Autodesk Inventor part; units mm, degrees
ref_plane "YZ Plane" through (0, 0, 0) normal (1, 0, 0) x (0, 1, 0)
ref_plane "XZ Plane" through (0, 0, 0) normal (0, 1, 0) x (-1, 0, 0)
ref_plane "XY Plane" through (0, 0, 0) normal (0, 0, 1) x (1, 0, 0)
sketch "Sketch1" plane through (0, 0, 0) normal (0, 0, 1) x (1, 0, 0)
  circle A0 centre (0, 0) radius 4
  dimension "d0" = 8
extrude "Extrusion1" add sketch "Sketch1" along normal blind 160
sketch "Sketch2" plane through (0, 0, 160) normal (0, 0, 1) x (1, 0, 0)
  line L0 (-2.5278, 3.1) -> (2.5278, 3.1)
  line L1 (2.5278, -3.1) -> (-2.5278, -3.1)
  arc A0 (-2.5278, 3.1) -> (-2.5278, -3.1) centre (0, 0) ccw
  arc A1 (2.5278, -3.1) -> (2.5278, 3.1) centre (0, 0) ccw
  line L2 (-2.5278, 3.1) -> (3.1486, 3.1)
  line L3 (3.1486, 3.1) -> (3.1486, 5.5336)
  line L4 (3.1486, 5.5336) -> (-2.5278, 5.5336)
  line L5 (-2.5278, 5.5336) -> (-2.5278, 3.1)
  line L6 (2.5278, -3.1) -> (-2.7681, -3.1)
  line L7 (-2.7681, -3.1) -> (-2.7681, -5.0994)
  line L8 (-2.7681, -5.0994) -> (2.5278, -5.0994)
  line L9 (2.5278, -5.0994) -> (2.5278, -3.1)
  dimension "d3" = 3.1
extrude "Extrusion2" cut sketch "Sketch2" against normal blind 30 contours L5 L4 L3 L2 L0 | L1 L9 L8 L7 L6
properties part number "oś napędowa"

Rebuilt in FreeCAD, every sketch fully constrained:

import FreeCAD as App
import Part
import Sketcher

V = App.Vector
Q = App.Units.Quantity


def add_polygon(sketch, points):
    """Adds a closed chain of lines whose ends are joined by coincident constraints."""
    first, n = sketch.GeometryCount, len(points)
    for a, b in zip(points, points[1:] + points[:1]):
        sketch.addGeometry(Part.LineSegment(App.Vector(*a, 0), App.Vector(*b, 0)), False)
    for i in range(n):
        sketch.addConstraint(Sketcher.Constraint("Coincident", first + i, 2, first + (i + 1) % n, 1))

doc = App.newDocument("Part")
body = doc.addObject("PartDesign::Body", "Body")

sketch1 = body.newObject("Sketcher::SketchObject", "Sketch")
sketch1.AttachmentSupport = (doc.getObject("XY_Plane"), [""])
sketch1.MapMode = "FlatFace"
sketch1.addGeometry(Part.Circle(V(0, 0, 0), V(0, 0, 1), 4), False)
sketch1.addConstraint(Sketcher.Constraint("Coincident", 0, 3, -1, 1))
sketch1.addConstraint(Sketcher.Constraint("Diameter", 0, Q("8 mm")))
pad1 = body.newObject("PartDesign::Pad", "Pad")
pad1.Profile = sketch1
pad1.Length = 160

sketch2 = body.newObject("Sketcher::SketchObject", "Sketch001")
sketch2.AttachmentSupport = (doc.getObject("XY_Plane"), [""])
sketch2.MapMode = "FlatFace"
sketch2.AttachmentOffset = App.Placement(V(0, 0, 160), App.Rotation())
add_polygon(sketch2, [(-2.5, 5.5), (-2.5, 3.1), (3.1, 3.1), (3.1, 5.5)])
add_polygon(sketch2, [(2.5, -3.1), (-2.8, -3.1), (-2.8, -5.1), (2.5, -5.1)])
sketch2.addConstraint(Sketcher.Constraint("Vertical", 0))
sketch2.addConstraint(Sketcher.Constraint("Horizontal", 1))
sketch2.addConstraint(Sketcher.Constraint("Vertical", 2))
sketch2.addConstraint(Sketcher.Constraint("Horizontal", 3))
sketch2.addConstraint(Sketcher.Constraint("Horizontal", 4))
sketch2.addConstraint(Sketcher.Constraint("Vertical", 5))
sketch2.addConstraint(Sketcher.Constraint("Horizontal", 6))
sketch2.addConstraint(Sketcher.Constraint("Vertical", 7))
sketch2.addConstraint(Sketcher.Constraint("Symmetric", 0, 2, 7, 2, -1, 1))
sketch2.addConstraint(Sketcher.Constraint("DistanceY", -1, 1, 0, 2, Q("3.1 mm")))
sketch2.addConstraint(Sketcher.Constraint("DistanceX", 4, 2, 4, 1, Q("5.296 mm")))
sketch2.addConstraint(Sketcher.Constraint("DistanceX", 1, 1, 1, 2, Q("5.6764 mm")))
sketch2.addConstraint(Sketcher.Constraint("DistanceY", 0, 2, 0, 1, Q("2.4336 mm")))
sketch2.addConstraint(Sketcher.Constraint("DistanceY", 5, 2, 5, 1, Q("1.9994 mm")))
sketch2.addConstraint(Sketcher.Constraint("DistanceX", 4, 2, -1, 1, Q("2.768 mm")))
pocket1 = body.newObject("PartDesign::Pocket", "Pocket")
pocket1.Profile = sketch2
pocket1.Length = 30

doc.recompute()
